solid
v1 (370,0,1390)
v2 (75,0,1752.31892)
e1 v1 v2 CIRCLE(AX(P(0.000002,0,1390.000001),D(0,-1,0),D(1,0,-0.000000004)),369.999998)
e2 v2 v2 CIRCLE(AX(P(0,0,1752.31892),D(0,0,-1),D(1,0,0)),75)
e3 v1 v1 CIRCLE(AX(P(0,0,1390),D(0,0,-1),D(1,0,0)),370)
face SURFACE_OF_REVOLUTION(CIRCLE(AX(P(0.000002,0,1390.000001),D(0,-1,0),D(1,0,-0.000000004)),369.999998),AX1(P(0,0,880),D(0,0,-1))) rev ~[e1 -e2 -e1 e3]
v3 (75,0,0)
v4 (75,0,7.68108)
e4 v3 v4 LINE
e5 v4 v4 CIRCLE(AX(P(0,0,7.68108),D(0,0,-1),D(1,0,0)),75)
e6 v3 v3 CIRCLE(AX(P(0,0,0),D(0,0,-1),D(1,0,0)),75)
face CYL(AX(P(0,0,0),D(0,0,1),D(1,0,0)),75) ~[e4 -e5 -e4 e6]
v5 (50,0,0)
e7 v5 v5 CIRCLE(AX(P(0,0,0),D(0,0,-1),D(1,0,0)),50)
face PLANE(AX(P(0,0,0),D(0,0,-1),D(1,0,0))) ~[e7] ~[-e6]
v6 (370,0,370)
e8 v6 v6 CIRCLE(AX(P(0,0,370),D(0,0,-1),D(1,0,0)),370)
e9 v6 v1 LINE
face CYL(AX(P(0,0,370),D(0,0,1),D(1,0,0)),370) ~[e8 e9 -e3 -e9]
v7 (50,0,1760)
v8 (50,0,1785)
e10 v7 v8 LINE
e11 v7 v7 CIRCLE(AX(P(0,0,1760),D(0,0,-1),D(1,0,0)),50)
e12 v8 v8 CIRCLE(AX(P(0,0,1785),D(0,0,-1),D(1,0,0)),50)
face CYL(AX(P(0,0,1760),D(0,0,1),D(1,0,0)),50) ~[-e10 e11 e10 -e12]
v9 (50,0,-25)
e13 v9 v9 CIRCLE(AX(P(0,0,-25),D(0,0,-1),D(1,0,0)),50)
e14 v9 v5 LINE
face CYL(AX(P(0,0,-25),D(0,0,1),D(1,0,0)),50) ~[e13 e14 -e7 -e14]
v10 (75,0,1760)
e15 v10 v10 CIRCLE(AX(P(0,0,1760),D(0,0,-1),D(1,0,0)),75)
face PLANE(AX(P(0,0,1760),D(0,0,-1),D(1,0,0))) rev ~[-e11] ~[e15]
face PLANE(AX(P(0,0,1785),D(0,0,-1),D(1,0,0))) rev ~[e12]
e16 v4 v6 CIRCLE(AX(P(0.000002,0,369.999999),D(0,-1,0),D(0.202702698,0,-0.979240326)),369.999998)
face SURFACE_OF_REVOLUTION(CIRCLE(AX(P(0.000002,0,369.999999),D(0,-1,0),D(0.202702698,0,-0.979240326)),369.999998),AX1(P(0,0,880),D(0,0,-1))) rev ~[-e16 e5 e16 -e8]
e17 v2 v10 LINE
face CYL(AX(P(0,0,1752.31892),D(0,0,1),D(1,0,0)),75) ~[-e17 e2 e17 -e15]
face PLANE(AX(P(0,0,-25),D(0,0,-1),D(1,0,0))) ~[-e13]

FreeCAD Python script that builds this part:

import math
import FreeCAD as App
import Part
import Sketcher

doc = App.newDocument("Part")
body = doc.addObject("PartDesign::Body", "Body")

# Sketch on XZ plane
sketch1 = body.newObject("Sketcher::SketchObject", "Sketch")
sketch1.AttachmentSupport = (doc.getObject("XZ_Plane"), [""])
sketch1.MapMode = "FlatFace"
sketch1.addGeometry([
    Part.LineSegment(App.Vector(75, 0, 0), App.Vector(75, 8, 0)),  # 0
    Part.ArcOfCircle(Part.Circle(App.Vector(0, 370, 0), App.Vector(0, 0, 1), 370), math.radians(-78), math.radians(0)),  # 1
    Part.LineSegment(App.Vector(370, 370, 0), App.Vector(370, 1390, 0)),  # 2
    Part.ArcOfCircle(Part.Circle(App.Vector(0, 1390, 0), App.Vector(0, 0, 1), 370), math.radians(0), math.radians(78)),  # 3
    Part.LineSegment(App.Vector(75, 1752, 0), App.Vector(75, 1760, 0)),  # 4
    Part.LineSegment(App.Vector(75, 1760, 0), App.Vector(50, 1760, 0)),  # 5
    Part.LineSegment(App.Vector(50, 1760, 0), App.Vector(50, 1785, 0)),  # 6
    Part.LineSegment(App.Vector(50, 1785, 0), App.Vector(0, 1785, 0)),  # 7
    Part.LineSegment(App.Vector(0, 1785, 0), App.Vector(0, -25, 0)),  # 8
    Part.LineSegment(App.Vector(0, -25, 0), App.Vector(50, -25, 0)),  # 9
    Part.LineSegment(App.Vector(50, -25, 0), App.Vector(50, 0, 0)),  # 10
    Part.LineSegment(App.Vector(50, 0, 0), App.Vector(75, 0, 0)),  # 11
], False)
sketch1.addConstraint([
    Sketcher.Constraint("Coincident", 0, 2, 1, 1),
    Sketcher.Constraint("Tangent", 1, 2, 2, 1),
    Sketcher.Constraint("Tangent", 2, 2, 3, 1),
    Sketcher.Constraint("Coincident", 3, 2, 4, 1),
    Sketcher.Constraint("Coincident", 4, 2, 5, 1),
    Sketcher.Constraint("Coincident", 5, 2, 6, 1),
    Sketcher.Constraint("Coincident", 6, 2, 7, 1),
    Sketcher.Constraint("Coincident", 7, 2, 8, 1),
    Sketcher.Constraint("Coincident", 8, 2, 9, 1),
    Sketcher.Constraint("Coincident", 9, 2, 10, 1),
    Sketcher.Constraint("Coincident", 10, 2, 11, 1),
    Sketcher.Constraint("Coincident", 11, 2, 0, 1),
    Sketcher.Constraint("Vertical", 0),
    Sketcher.Constraint("Vertical", 2),
    Sketcher.Constraint("Vertical", 4),
    Sketcher.Constraint("Horizontal", 5),
    Sketcher.Constraint("Vertical", 6),
    Sketcher.Constraint("Horizontal", 7),
    Sketcher.Constraint("Vertical", 8),
    Sketcher.Constraint("Horizontal", 9),
    Sketcher.Constraint("Vertical", 10),
    Sketcher.Constraint("Horizontal", 11),
    Sketcher.Constraint("Equal", 1, 3),
    Sketcher.Constraint("PointOnObject", 7, 2, -2),
    Sketcher.Constraint("PointOnObject", 10, 2, -1),
    Sketcher.Constraint("Vertical", 0, 2, 3, 2),
    Sketcher.Constraint("Vertical", 6, 2, 9, 2),
    Sketcher.Constraint("Equal", 0, 4),
    Sketcher.Constraint("Equal", 11, 6),
    Sketcher.Constraint("Equal", 6, 10),
    Sketcher.Constraint("DistanceX", 5, 2, 5, 1, 25.0),
    Sketcher.Constraint("DistanceX", 7, 2, 7, 1, 50.0),
    Sketcher.Constraint("DistanceY", 2, 1, 2, 2, 1020.0),
    Sketcher.Constraint("DistanceY", 8, 2, 8, 1, 1810.0),
    Sketcher.Constraint("DistanceX", -1, 1, 1, 2, 370.0),
    Sketcher.Constraint("Radius", 1, 369.999998),
])
revolution = body.newObject("PartDesign::Revolution", "Revolution")
revolution.Profile = sketch1
revolution.ReferenceAxis = (sketch1, ["V_Axis"])
revolution.Angle = 360

doc.recompute()
